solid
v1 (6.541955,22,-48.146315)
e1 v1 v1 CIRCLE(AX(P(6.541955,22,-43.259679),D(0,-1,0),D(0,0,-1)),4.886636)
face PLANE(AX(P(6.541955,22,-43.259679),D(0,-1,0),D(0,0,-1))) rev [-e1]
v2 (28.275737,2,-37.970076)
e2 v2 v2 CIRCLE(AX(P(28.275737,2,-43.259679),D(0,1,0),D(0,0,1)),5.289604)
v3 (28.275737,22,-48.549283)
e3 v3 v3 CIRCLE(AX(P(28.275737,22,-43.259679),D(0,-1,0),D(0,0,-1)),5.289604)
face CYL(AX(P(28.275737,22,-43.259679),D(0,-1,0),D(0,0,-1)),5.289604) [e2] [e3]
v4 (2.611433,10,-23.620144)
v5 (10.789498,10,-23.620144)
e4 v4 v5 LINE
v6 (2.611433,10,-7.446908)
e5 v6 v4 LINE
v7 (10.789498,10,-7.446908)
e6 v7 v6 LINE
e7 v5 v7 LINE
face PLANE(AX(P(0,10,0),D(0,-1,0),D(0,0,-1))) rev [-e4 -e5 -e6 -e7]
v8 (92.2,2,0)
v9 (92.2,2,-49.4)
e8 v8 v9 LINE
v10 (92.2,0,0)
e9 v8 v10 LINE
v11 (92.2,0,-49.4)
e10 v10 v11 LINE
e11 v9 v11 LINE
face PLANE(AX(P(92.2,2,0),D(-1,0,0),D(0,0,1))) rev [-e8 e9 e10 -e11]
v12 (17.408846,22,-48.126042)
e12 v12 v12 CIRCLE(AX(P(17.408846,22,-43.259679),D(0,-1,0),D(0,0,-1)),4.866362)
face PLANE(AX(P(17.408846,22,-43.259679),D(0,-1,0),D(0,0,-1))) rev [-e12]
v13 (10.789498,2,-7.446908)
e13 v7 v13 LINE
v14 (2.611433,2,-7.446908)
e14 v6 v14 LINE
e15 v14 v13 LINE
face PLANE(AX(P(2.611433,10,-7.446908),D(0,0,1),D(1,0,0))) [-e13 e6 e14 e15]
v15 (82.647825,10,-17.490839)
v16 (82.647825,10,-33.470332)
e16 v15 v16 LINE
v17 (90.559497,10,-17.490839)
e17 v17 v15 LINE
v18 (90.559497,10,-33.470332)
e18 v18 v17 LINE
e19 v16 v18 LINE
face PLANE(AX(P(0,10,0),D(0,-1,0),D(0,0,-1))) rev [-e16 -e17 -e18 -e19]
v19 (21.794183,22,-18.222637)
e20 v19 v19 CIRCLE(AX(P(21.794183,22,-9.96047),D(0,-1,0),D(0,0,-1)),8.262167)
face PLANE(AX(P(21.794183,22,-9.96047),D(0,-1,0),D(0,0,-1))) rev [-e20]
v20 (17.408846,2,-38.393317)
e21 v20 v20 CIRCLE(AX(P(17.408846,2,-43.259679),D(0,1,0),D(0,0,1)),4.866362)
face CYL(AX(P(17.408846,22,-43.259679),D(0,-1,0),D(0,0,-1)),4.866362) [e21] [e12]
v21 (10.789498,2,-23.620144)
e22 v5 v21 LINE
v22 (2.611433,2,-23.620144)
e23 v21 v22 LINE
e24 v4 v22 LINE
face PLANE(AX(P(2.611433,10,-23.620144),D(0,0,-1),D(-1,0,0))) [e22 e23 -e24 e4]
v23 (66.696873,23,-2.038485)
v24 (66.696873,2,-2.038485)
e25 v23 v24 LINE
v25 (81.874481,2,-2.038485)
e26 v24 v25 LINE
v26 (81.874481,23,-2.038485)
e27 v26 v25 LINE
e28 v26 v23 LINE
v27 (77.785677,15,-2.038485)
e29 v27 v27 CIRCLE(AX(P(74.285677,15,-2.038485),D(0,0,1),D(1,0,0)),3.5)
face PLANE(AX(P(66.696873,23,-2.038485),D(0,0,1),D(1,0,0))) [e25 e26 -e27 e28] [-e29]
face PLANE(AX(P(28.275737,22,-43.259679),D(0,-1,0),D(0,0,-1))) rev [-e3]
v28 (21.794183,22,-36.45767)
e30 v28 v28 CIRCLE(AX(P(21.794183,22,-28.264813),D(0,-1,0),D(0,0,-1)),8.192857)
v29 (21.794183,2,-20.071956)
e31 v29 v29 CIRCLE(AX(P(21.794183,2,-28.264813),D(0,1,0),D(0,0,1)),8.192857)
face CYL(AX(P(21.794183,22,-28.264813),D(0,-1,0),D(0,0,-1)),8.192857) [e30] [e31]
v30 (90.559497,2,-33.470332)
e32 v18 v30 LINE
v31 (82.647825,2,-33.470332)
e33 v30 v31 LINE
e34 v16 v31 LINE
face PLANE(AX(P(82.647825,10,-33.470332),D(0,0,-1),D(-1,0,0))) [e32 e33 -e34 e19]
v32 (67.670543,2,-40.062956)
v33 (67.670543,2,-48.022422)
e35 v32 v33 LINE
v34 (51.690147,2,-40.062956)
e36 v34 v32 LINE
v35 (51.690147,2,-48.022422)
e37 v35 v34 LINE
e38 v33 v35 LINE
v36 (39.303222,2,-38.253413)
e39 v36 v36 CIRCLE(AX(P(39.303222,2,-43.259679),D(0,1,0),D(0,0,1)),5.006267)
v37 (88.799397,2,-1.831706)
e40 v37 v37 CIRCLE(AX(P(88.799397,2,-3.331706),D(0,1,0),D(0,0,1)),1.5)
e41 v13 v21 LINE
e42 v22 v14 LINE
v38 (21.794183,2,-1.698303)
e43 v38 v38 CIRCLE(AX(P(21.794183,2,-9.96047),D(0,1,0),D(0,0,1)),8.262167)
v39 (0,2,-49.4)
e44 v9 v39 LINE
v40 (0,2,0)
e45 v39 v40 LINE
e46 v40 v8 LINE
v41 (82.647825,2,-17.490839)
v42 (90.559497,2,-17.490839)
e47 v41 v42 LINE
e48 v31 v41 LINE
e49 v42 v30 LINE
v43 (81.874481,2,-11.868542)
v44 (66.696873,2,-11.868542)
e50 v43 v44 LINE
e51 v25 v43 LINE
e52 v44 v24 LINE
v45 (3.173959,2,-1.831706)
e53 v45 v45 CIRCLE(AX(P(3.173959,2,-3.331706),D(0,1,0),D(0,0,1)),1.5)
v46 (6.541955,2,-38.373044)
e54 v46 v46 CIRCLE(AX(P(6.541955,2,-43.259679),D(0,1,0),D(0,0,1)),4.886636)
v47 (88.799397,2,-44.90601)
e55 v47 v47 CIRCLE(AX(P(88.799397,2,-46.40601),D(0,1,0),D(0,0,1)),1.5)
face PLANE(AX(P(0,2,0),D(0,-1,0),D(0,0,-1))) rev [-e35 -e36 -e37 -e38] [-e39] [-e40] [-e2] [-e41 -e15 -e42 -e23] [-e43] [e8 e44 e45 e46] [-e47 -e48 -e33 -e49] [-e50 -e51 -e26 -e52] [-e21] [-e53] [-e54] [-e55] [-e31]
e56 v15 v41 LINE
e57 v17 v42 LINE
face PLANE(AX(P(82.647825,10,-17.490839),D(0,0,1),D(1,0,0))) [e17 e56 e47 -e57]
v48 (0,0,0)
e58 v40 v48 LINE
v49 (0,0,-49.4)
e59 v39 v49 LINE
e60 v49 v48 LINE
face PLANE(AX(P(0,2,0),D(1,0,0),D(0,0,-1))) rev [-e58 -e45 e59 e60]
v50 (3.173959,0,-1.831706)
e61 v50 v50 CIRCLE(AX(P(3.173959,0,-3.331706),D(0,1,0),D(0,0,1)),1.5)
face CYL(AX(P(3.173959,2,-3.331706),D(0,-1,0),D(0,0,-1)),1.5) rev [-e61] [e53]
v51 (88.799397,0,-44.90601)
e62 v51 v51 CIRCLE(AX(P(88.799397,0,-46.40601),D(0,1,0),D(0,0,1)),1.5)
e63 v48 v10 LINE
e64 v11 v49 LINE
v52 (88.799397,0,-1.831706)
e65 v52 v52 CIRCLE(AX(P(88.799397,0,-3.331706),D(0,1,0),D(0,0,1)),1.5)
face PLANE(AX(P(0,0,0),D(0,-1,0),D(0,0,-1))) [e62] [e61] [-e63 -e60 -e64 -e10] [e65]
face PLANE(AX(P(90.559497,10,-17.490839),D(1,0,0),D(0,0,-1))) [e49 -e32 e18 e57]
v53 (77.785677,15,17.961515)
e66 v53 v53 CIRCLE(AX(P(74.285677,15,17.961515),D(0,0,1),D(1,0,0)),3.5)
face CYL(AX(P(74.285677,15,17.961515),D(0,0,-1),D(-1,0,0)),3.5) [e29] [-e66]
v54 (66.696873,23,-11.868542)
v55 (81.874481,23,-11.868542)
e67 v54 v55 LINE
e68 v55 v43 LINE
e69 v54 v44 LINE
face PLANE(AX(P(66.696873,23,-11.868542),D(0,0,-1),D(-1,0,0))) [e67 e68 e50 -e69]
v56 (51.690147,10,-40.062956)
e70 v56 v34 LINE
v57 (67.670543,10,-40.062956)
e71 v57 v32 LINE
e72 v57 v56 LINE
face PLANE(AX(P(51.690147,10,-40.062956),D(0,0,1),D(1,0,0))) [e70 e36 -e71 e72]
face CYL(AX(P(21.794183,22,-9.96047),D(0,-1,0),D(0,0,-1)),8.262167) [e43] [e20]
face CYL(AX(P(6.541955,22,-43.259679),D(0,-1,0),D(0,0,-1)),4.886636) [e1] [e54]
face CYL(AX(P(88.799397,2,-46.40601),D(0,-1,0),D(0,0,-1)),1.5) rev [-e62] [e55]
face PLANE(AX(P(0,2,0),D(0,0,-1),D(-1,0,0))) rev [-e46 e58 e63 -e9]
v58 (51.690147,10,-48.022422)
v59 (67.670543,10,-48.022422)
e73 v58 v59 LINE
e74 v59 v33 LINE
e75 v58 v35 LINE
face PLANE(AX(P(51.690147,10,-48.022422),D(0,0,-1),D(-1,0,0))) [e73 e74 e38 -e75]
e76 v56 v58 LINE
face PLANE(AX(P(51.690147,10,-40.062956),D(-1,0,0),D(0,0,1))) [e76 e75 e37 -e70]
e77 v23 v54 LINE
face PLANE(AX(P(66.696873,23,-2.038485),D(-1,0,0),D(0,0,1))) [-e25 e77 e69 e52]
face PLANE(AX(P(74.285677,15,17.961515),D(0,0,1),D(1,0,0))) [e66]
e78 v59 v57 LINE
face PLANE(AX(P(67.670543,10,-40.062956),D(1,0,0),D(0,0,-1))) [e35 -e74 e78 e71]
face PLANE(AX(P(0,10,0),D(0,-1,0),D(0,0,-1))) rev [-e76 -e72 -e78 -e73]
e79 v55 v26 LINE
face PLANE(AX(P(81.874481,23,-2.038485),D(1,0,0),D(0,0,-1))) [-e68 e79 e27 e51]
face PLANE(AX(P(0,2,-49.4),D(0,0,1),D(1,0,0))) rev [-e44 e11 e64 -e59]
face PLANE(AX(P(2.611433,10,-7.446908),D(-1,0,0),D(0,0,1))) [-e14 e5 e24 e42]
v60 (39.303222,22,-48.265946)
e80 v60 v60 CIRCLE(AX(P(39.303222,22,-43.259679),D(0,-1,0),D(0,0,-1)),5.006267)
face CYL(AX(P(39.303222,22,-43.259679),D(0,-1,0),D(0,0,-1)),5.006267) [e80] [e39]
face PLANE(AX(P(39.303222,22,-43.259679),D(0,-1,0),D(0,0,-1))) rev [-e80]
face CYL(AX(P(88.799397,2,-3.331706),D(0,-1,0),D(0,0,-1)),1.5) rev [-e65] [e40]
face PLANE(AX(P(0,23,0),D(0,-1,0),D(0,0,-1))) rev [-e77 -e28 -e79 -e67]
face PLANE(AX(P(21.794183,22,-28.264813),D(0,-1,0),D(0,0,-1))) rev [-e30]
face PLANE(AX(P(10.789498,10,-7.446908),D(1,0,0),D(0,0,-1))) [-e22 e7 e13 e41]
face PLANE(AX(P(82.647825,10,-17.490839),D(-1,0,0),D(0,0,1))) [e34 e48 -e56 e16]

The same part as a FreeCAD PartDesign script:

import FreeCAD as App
import Part
import Sketcher
from FreeCAD import Vector
Q = App.Units.Quantity

doc = App.newDocument("Part")
body = doc.addObject("PartDesign::Body", "Body")

# Sketch on XZ plane
sketch1 = body.newObject("Sketcher::SketchObject", "Sketch")
sketch1.AttachmentSupport = (doc.getObject("XZ_Plane"), [""])
sketch1.MapMode = "FlatFace"
sketch1.addGeometry([
    Part.LineSegment(Vector(0, -49.4, 0), Vector(0, 0, 0)),  # 0
    Part.LineSegment(Vector(0, 0, 0), Vector(92.2, 0, 0)),  # 1
    Part.LineSegment(Vector(92.2, 0, 0), Vector(92.2, -49.4, 0)),  # 2
    Part.LineSegment(Vector(92.2, -49.4, 0), Vector(0, -49.4, 0)),  # 3
    Part.Circle(Vector(3.2, -3.3, 0), Vector(0, 0, 1), 1.5),  # 4
    Part.Circle(Vector(21.8, -10, 0), Vector(0, 0, 1), 8.3),  # 5
    Part.LineSegment(Vector(10.8, -7.4, 0), Vector(2.6, -7.4, 0)),  # 6
    Part.LineSegment(Vector(2.6, -7.4, 0), Vector(2.6, -23.6, 0)),  # 7
    Part.LineSegment(Vector(2.6, -23.6, 0), Vector(10.8, -23.6, 0)),  # 8
    Part.LineSegment(Vector(10.8, -23.6, 0), Vector(10.8, -7.4, 0)),  # 9
    Part.LineSegment(Vector(81.9, -2, 0), Vector(66.7, -2, 0)),  # 10
    Part.LineSegment(Vector(66.7, -2, 0), Vector(66.7, -11.9, 0)),  # 11
    Part.LineSegment(Vector(66.7, -11.9, 0), Vector(81.9, -11.9, 0)),  # 12
    Part.LineSegment(Vector(81.9, -11.9, 0), Vector(81.9, -2, 0)),  # 13
    Part.Circle(Vector(88.8, -3.3, 0), Vector(0, 0, 1), 1.5),  # 14
    Part.Circle(Vector(21.8, -28.3, 0), Vector(0, 0, 1), 8.2),  # 15
    Part.Circle(Vector(6.5, -43.3, 0), Vector(0, 0, 1), 4.9),  # 16
    Part.Circle(Vector(17.4, -43.3, 0), Vector(0, 0, 1), 4.9),  # 17
    Part.Circle(Vector(28.3, -43.3, 0), Vector(0, 0, 1), 5.3),  # 18
    Part.Circle(Vector(39.3, -43.3, 0), Vector(0, 0, 1), 5),  # 19
    Part.LineSegment(Vector(90.6, -17.5, 0), Vector(82.6, -17.5, 0)),  # 20
    Part.LineSegment(Vector(82.6, -17.5, 0), Vector(82.6, -33.5, 0)),  # 21
    Part.LineSegment(Vector(82.6, -33.5, 0), Vector(90.6, -33.5, 0)),  # 22
    Part.LineSegment(Vector(90.6, -33.5, 0), Vector(90.6, -17.5, 0)),  # 23
    Part.LineSegment(Vector(67.7, -40.1, 0), Vector(51.7, -40.1, 0)),  # 24
    Part.LineSegment(Vector(51.7, -40.1, 0), Vector(51.7, -48, 0)),  # 25
    Part.LineSegment(Vector(51.7, -48, 0), Vector(67.7, -48, 0)),  # 26
    Part.LineSegment(Vector(67.7, -48, 0), Vector(67.7, -40.1, 0)),  # 27
    Part.Circle(Vector(88.8, -46.4, 0), Vector(0, 0, 1), 1.5),  # 28
], False)
sketch1.addConstraint([
    Sketcher.Constraint("Coincident", 0, 2, 1, 1),
    Sketcher.Constraint("Coincident", 1, 2, 2, 1),
    Sketcher.Constraint("Coincident", 2, 2, 3, 1),
    Sketcher.Constraint("Coincident", 3, 2, 0, 1),
    Sketcher.Constraint("Coincident", 6, 2, 7, 1),
    Sketcher.Constraint("Coincident", 7, 2, 8, 1),
    Sketcher.Constraint("Coincident", 8, 2, 9, 1),
    Sketcher.Constraint("Coincident", 9, 2, 6, 1),
    Sketcher.Constraint("Coincident", 10, 2, 11, 1),
    Sketcher.Constraint("Coincident", 11, 2, 12, 1),
    Sketcher.Constraint("Coincident", 12, 2, 13, 1),
    Sketcher.Constraint("Coincident", 13, 2, 10, 1),
    Sketcher.Constraint("Coincident", 20, 2, 21, 1),
    Sketcher.Constraint("Coincident", 21, 2, 22, 1),
    Sketcher.Constraint("Coincident", 22, 2, 23, 1),
    Sketcher.Constraint("Coincident", 23, 2, 20, 1),
    Sketcher.Constraint("Coincident", 24, 2, 25, 1),
    Sketcher.Constraint("Coincident", 25, 2, 26, 1),
    Sketcher.Constraint("Coincident", 26, 2, 27, 1),
    Sketcher.Constraint("Coincident", 27, 2, 24, 1),
    Sketcher.Constraint("Vertical", 0),
    Sketcher.Constraint("Horizontal", 1),
    Sketcher.Constraint("Vertical", 2),
    Sketcher.Constraint("Horizontal", 3),
    Sketcher.Constraint("Horizontal", 6),
    Sketcher.Constraint("Vertical", 7),
    Sketcher.Constraint("Horizontal", 8),
    Sketcher.Constraint("Vertical", 9),
    Sketcher.Constraint("Horizontal", 10),
    Sketcher.Constraint("Vertical", 11),
    Sketcher.Constraint("Horizontal", 12),
    Sketcher.Constraint("Vertical", 13),
    Sketcher.Constraint("Horizontal", 20),
    Sketcher.Constraint("Vertical", 21),
    Sketcher.Constraint("Horizontal", 22),
    Sketcher.Constraint("Vertical", 23),
    Sketcher.Constraint("Horizontal", 24),
    Sketcher.Constraint("Vertical", 25),
    Sketcher.Constraint("Horizontal", 26),
    Sketcher.Constraint("Vertical", 27),
    Sketcher.Constraint("Coincident", 0, 2, -1, 1),
    Sketcher.Constraint("Equal", 4, 14),
    Sketcher.Constraint("Equal", 14, 28),
    Sketcher.Constraint("Horizontal", 4, 3, 14, 3),
    Sketcher.Constraint("Horizontal", 16, 3, 17, 3),
    Sketcher.Constraint("Horizontal", 17, 3, 18, 3),
    Sketcher.Constraint("Horizontal", 18, 3, 19, 3),
    Sketcher.Constraint("Vertical", 5, 3, 15, 3),
    Sketcher.Constraint("Vertical", 14, 3, 28, 3),
    Sketcher.Constraint("Diameter", 4, Q("3 mm")),
    Sketcher.Constraint("DistanceX", 1, 1, 1, 2, Q("92.2 mm")),
    Sketcher.Constraint("DistanceY", 0, 1, 0, 2, Q("49.4 mm")),
    Sketcher.Constraint("Diameter", 16, Q("9.773271 mm")),
    Sketcher.Constraint("Diameter", 5, Q("16.524334 mm")),
    Sketcher.Constraint("Diameter", 15, Q("16.385714 mm")),
    Sketcher.Constraint("Diameter", 17, Q("9.732724 mm")),
    Sketcher.Constraint("Diameter", 18, Q("10.579208 mm")),
    Sketcher.Constraint("Diameter", 19, Q("10.012534 mm")),
    Sketcher.Constraint("DistanceX", 10, 2, 10, 1, Q("15.177608 mm")),
    Sketcher.Constraint("DistanceX", 20, 2, 20, 1, Q("7.911671 mm")),
    Sketcher.Constraint("DistanceX", -1, 1, 8, 2, Q("10.789498 mm")),
    Sketcher.Constraint("DistanceX", 28, 3, 22, 2, Q("1.760099 mm")),
    Sketcher.Constraint("DistanceX", 17, 3, 25, 2, Q("34.2813 mm")),
    Sketcher.Constraint("DistanceX", 6, 2, 6, 1, Q("8.178066 mm")),
    Sketcher.Constraint("DistanceX", 24, 2, 24, 1, Q("15.980397 mm")),
    Sketcher.Constraint("DistanceY", 7, 2, 7, 1, Q("16.173236 mm")),
    Sketcher.Constraint("DistanceY", 11, 2, 11, 1, Q("9.830057 mm")),
    Sketcher.Constraint("DistanceY", 21, 2, 21, 1, Q("15.979494 mm")),
    Sketcher.Constraint("DistanceY", 25, 2, 25, 1, Q("7.959467 mm")),
    Sketcher.Constraint("DistanceX", -1, 1, 4, 3, Q("3.173959 mm")),
    Sketcher.Constraint("DistanceY", 5, 3, -1, 1, Q("9.96047 mm")),
    Sketcher.Constraint("DistanceY", 16, 3, -1, 1, Q("43.259679 mm")),
    Sketcher.Constraint("DistanceY", 28, 3, -1, 1, Q("46.40601 mm")),
    Sketcher.Constraint("DistanceX", -1, 1, 12, 2, Q("81.874481 mm")),
    Sketcher.Constraint("DistanceY", 20, 2, -1, 1, Q("17.490839 mm")),
    Sketcher.Constraint("DistanceX", 4, 3, 14, 3, Q("85.625438 mm")),
    Sketcher.Constraint("DistanceX", 16, 3, 14, 3, Q("82.257442 mm")),
    Sketcher.Constraint("DistanceX", 16, 3, 17, 3, Q("10.866891 mm")),
    Sketcher.Constraint("DistanceX", 17, 3, 18, 3, Q("10.866891 mm")),
    Sketcher.Constraint("DistanceX", 15, 3, 19, 3, Q("17.509039 mm")),
    Sketcher.Constraint("DistanceX", 6, 2, 5, 3, Q("19.182751 mm")),
    Sketcher.Constraint("DistanceY", 16, 3, 6, 2, Q("35.812772 mm")),
    Sketcher.Constraint("DistanceY", 15, 3, 7, 2, Q("4.64467 mm")),
    Sketcher.Constraint("DistanceY", 7, 2, 4, 3, Q("20.288438 mm")),
    Sketcher.Constraint("DistanceY", 14, 3, 10, 2, Q("1.29322 mm")),
    Sketcher.Constraint("DistanceY", 25, 2, 21, 2, Q("14.55209 mm")),
])
pad1 = body.newObject("PartDesign::Pad", "Pad")
pad1.Profile = sketch1
pad1.Length = 2
pad1.Reversed = True

# Sketch on XZ plane
sketch2 = body.newObject("Sketcher::SketchObject", "Sketch001")
sketch2.AttachmentSupport = (doc.getObject("XZ_Plane"), [""])
sketch2.MapMode = "FlatFace"
sketch2.addGeometry([
    Part.LineSegment(Vector(11, -24, 0), Vector(11, -7, 0)),  # 0
    Part.LineSegment(Vector(11, -7, 0), Vector(3, -7, 0)),  # 1
    Part.LineSegment(Vector(3, -7, 0), Vector(3, -24, 0)),  # 2
    Part.LineSegment(Vector(3, -24, 0), Vector(11, -24, 0)),  # 3
    Part.LineSegment(Vector(68, -48, 0), Vector(68, -40, 0)),  # 4
    Part.LineSegment(Vector(68, -40, 0), Vector(52, -40, 0)),  # 5
    Part.LineSegment(Vector(52, -40, 0), Vector(52, -48, 0)),  # 6
    Part.LineSegment(Vector(52, -48, 0), Vector(68, -48, 0)),  # 7
    Part.LineSegment(Vector(91, -33, 0), Vector(91, -17, 0)),  # 8
    Part.LineSegment(Vector(91, -17, 0), Vector(83, -17, 0)),  # 9
    Part.LineSegment(Vector(83, -17, 0), Vector(83, -33, 0)),  # 10
    Part.LineSegment(Vector(83, -33, 0), Vector(91, -33, 0)),  # 11
], False)
sketch2.addConstraint([
    Sketcher.Constraint("Coincident", 0, 2, 1, 1),
    Sketcher.Constraint("Coincident", 1, 2, 2, 1),
    Sketcher.Constraint("Coincident", 2, 2, 3, 1),
    Sketcher.Constraint("Coincident", 3, 2, 0, 1),
    Sketcher.Constraint("Coincident", 4, 2, 5, 1),
    Sketcher.Constraint("Coincident", 5, 2, 6, 1),
    Sketcher.Constraint("Coincident", 6, 2, 7, 1),
    Sketcher.Constraint("Coincident", 7, 2, 4, 1),
    Sketcher.Constraint("Coincident", 8, 2, 9, 1),
    Sketcher.Constraint("Coincident", 9, 2, 10, 1),
    Sketcher.Constraint("Coincident", 10, 2, 11, 1),
    Sketcher.Constraint("Coincident", 11, 2, 8, 1),
    Sketcher.Constraint("Vertical", 0),
    Sketcher.Constraint("Horizontal", 1),
    Sketcher.Constraint("Vertical", 2),
    Sketcher.Constraint("Horizontal", 3),
    Sketcher.Constraint("Vertical", 4),
    Sketcher.Constraint("Horizontal", 5),
    Sketcher.Constraint("Vertical", 6),
    Sketcher.Constraint("Horizontal", 7),
    Sketcher.Constraint("Vertical", 8),
    Sketcher.Constraint("Horizontal", 9),
    Sketcher.Constraint("Vertical", 10),
    Sketcher.Constraint("Horizontal", 11),
    Sketcher.Constraint("DistanceX", 3, 2, 8, 2, Q("79.769998 mm")),
    Sketcher.Constraint("DistanceX", 9, 2, 9, 1, Q("7.911671 mm")),
    Sketcher.Constraint("DistanceX", -1, 1, 0, 2, Q("10.789498 mm")),
    Sketcher.Constraint("DistanceX", 1, 2, 1, 1, Q("8.178066 mm")),
    Sketcher.Constraint("DistanceX", 5, 2, 5, 1, Q("15.980397 mm")),
    Sketcher.Constraint("DistanceY", 0, 1, 0, 2, Q("16.173236 mm")),
    Sketcher.Constraint("DistanceY", 4, 1, 4, 2, Q("7.959467 mm")),
    Sketcher.Constraint("DistanceY", 8, 1, 8, 2, Q("15.979494 mm")),
    Sketcher.Constraint("DistanceY", 8, 2, -1, 1, Q("17.490839 mm")),
    Sketcher.Constraint("DistanceX", 2, 2, 4, 2, Q("65.059111 mm")),
    Sketcher.Constraint("DistanceY", 6, 2, 3, 2, Q("24.402279 mm")),
    Sketcher.Constraint("DistanceY", 7, 2, 10, 2, Q("14.55209 mm")),
])
pad2 = body.newObject("PartDesign::Pad", "Pad001")
pad2.Profile = sketch2
pad2.Length = 10
pad2.Reversed = True

# Sketch on XZ plane
sketch3 = body.newObject("Sketcher::SketchObject", "Sketch002")
sketch3.AttachmentSupport = (doc.getObject("XZ_Plane"), [""])
sketch3.MapMode = "FlatFace"
sketch3.addGeometry([
    Part.Circle(Vector(21.8, -28.3, 0), Vector(0, 0, 1), 8.2),  # 0
    Part.Circle(Vector(21.8, -10, 0), Vector(0, 0, 1), 8.3),  # 1
    Part.Circle(Vector(6.5, -43.3, 0), Vector(0, 0, 1), 4.9),  # 2
    Part.Circle(Vector(17.4, -43.3, 0), Vector(0, 0, 1), 4.9),  # 3
    Part.Circle(Vector(28.3, -43.3, 0), Vector(0, 0, 1), 5.3),  # 4
    Part.Circle(Vector(39.3, -43.3, 0), Vector(0, 0, 1), 5),  # 5
], False)
sketch3.addConstraint([
    Sketcher.Constraint("Horizontal", 2, 3, 3, 3),
    Sketcher.Constraint("Horizontal", 3, 3, 4, 3),
    Sketcher.Constraint("Horizontal", 4, 3, 5, 3),
    Sketcher.Constraint("Vertical", 0, 3, 1, 3),
    Sketcher.Constraint("Diameter", 2, Q("9.773271 mm")),
    Sketcher.Constraint("Diameter", 0, Q("16.385714 mm")),
    Sketcher.Constraint("Diameter", 1, Q("16.524334 mm")),
    Sketcher.Constraint("Diameter", 3, Q("9.732724 mm")),
    Sketcher.Constraint("Diameter", 4, Q("10.579208 mm")),
    Sketcher.Constraint("Diameter", 5, Q("10.012534 mm")),
    Sketcher.Constraint("DistanceY", 1, 3, -1, 1, Q("9.96047 mm")),
    Sketcher.Constraint("DistanceY", 2, 3, -1, 1, Q("43.259679 mm")),
    Sketcher.Constraint("DistanceX", 2, 3, 3, 3, Q("10.866891 mm")),
    Sketcher.Constraint("DistanceX", 3, 3, 4, 3, Q("10.866891 mm")),
    Sketcher.Constraint("DistanceX", 0, 3, 5, 3, Q("17.509039 mm")),
    Sketcher.Constraint("DistanceX", -1, 1, 0, 3, Q("21.794183 mm")),
    Sketcher.Constraint("DistanceY", 0, 3, -1, 1, Q("28.264813 mm")),
    Sketcher.Constraint("DistanceX", -1, 1, 2, 3, Q("6.541955 mm")),
])
pad3 = body.newObject("PartDesign::Pad", "Pad002")
pad3.Profile = sketch3
pad3.Length = 22
pad3.Reversed = True

# Sketch on XZ plane
sketch4 = body.newObject("Sketcher::SketchObject", "Sketch003")
sketch4.AttachmentSupport = (doc.getObject("XZ_Plane"), [""])
sketch4.MapMode = "FlatFace"
sketch4.addGeometry([
    Part.LineSegment(Vector(82, -12, 0), Vector(82, -2, 0)),
    Part.LineSegment(Vector(82, -2, 0), Vector(67, -2, 0)),
    Part.LineSegment(Vector(67, -2, 0), Vector(67, -12, 0)),
    Part.LineSegment(Vector(67, -12, 0), Vector(82, -12, 0)),
], False)
sketch4.addConstraint([
    Sketcher.Constraint("Coincident", 0, 2, 1, 1),
    Sketcher.Constraint("Coincident", 1, 2, 2, 1),
    Sketcher.Constraint("Coincident", 2, 2, 3, 1),
    Sketcher.Constraint("Coincident", 3, 2, 0, 1),
    Sketcher.Constraint("Vertical", 0),
    Sketcher.Constraint("Horizontal", 1),
    Sketcher.Constraint("Vertical", 2),
    Sketcher.Constraint("Horizontal", 3),
    Sketcher.Constraint("DistanceX", 1, 2, 1, 1, Q("15.177608 mm")),
    Sketcher.Constraint("DistanceY", 0, 1, 0, 2, Q("9.830057 mm")),
    Sketcher.Constraint("DistanceX", -1, 1, 0, 2, Q("81.874481 mm")),
    Sketcher.Constraint("DistanceY", 0, 2, -1, 1, Q("2.038485 mm")),
])
pad4 = body.newObject("PartDesign::Pad", "Pad003")
pad4.Profile = sketch4
pad4.Length = 23
pad4.Reversed = True

# Sketch on XY plane
sketch5 = body.newObject("Sketcher::SketchObject", "Sketch004")
sketch5.AttachmentSupport = (doc.getObject("XY_Plane"), [""])
sketch5.MapMode = "FlatFace"
sketch5.AttachmentOffset = App.Placement(Vector(0, 0, -2.038485), App.Rotation())
sketch5.addGeometry(Part.Circle(Vector(74.3, 15, 0), Vector(0, 0, 1), 3.5), False)
sketch5.addConstraint([
    Sketcher.Constraint("Diameter", 0, Q("7 mm")),
    Sketcher.Constraint("DistanceY", -1, 1, 0, 3, Q("15 mm")),
    Sketcher.Constraint("DistanceX", -1, 1, 0, 3, Q("74.285677 mm")),
])
pad5 = body.newObject("PartDesign::Pad", "Pad004")
pad5.Profile = sketch5
pad5.Length = 20

doc.recompute()
